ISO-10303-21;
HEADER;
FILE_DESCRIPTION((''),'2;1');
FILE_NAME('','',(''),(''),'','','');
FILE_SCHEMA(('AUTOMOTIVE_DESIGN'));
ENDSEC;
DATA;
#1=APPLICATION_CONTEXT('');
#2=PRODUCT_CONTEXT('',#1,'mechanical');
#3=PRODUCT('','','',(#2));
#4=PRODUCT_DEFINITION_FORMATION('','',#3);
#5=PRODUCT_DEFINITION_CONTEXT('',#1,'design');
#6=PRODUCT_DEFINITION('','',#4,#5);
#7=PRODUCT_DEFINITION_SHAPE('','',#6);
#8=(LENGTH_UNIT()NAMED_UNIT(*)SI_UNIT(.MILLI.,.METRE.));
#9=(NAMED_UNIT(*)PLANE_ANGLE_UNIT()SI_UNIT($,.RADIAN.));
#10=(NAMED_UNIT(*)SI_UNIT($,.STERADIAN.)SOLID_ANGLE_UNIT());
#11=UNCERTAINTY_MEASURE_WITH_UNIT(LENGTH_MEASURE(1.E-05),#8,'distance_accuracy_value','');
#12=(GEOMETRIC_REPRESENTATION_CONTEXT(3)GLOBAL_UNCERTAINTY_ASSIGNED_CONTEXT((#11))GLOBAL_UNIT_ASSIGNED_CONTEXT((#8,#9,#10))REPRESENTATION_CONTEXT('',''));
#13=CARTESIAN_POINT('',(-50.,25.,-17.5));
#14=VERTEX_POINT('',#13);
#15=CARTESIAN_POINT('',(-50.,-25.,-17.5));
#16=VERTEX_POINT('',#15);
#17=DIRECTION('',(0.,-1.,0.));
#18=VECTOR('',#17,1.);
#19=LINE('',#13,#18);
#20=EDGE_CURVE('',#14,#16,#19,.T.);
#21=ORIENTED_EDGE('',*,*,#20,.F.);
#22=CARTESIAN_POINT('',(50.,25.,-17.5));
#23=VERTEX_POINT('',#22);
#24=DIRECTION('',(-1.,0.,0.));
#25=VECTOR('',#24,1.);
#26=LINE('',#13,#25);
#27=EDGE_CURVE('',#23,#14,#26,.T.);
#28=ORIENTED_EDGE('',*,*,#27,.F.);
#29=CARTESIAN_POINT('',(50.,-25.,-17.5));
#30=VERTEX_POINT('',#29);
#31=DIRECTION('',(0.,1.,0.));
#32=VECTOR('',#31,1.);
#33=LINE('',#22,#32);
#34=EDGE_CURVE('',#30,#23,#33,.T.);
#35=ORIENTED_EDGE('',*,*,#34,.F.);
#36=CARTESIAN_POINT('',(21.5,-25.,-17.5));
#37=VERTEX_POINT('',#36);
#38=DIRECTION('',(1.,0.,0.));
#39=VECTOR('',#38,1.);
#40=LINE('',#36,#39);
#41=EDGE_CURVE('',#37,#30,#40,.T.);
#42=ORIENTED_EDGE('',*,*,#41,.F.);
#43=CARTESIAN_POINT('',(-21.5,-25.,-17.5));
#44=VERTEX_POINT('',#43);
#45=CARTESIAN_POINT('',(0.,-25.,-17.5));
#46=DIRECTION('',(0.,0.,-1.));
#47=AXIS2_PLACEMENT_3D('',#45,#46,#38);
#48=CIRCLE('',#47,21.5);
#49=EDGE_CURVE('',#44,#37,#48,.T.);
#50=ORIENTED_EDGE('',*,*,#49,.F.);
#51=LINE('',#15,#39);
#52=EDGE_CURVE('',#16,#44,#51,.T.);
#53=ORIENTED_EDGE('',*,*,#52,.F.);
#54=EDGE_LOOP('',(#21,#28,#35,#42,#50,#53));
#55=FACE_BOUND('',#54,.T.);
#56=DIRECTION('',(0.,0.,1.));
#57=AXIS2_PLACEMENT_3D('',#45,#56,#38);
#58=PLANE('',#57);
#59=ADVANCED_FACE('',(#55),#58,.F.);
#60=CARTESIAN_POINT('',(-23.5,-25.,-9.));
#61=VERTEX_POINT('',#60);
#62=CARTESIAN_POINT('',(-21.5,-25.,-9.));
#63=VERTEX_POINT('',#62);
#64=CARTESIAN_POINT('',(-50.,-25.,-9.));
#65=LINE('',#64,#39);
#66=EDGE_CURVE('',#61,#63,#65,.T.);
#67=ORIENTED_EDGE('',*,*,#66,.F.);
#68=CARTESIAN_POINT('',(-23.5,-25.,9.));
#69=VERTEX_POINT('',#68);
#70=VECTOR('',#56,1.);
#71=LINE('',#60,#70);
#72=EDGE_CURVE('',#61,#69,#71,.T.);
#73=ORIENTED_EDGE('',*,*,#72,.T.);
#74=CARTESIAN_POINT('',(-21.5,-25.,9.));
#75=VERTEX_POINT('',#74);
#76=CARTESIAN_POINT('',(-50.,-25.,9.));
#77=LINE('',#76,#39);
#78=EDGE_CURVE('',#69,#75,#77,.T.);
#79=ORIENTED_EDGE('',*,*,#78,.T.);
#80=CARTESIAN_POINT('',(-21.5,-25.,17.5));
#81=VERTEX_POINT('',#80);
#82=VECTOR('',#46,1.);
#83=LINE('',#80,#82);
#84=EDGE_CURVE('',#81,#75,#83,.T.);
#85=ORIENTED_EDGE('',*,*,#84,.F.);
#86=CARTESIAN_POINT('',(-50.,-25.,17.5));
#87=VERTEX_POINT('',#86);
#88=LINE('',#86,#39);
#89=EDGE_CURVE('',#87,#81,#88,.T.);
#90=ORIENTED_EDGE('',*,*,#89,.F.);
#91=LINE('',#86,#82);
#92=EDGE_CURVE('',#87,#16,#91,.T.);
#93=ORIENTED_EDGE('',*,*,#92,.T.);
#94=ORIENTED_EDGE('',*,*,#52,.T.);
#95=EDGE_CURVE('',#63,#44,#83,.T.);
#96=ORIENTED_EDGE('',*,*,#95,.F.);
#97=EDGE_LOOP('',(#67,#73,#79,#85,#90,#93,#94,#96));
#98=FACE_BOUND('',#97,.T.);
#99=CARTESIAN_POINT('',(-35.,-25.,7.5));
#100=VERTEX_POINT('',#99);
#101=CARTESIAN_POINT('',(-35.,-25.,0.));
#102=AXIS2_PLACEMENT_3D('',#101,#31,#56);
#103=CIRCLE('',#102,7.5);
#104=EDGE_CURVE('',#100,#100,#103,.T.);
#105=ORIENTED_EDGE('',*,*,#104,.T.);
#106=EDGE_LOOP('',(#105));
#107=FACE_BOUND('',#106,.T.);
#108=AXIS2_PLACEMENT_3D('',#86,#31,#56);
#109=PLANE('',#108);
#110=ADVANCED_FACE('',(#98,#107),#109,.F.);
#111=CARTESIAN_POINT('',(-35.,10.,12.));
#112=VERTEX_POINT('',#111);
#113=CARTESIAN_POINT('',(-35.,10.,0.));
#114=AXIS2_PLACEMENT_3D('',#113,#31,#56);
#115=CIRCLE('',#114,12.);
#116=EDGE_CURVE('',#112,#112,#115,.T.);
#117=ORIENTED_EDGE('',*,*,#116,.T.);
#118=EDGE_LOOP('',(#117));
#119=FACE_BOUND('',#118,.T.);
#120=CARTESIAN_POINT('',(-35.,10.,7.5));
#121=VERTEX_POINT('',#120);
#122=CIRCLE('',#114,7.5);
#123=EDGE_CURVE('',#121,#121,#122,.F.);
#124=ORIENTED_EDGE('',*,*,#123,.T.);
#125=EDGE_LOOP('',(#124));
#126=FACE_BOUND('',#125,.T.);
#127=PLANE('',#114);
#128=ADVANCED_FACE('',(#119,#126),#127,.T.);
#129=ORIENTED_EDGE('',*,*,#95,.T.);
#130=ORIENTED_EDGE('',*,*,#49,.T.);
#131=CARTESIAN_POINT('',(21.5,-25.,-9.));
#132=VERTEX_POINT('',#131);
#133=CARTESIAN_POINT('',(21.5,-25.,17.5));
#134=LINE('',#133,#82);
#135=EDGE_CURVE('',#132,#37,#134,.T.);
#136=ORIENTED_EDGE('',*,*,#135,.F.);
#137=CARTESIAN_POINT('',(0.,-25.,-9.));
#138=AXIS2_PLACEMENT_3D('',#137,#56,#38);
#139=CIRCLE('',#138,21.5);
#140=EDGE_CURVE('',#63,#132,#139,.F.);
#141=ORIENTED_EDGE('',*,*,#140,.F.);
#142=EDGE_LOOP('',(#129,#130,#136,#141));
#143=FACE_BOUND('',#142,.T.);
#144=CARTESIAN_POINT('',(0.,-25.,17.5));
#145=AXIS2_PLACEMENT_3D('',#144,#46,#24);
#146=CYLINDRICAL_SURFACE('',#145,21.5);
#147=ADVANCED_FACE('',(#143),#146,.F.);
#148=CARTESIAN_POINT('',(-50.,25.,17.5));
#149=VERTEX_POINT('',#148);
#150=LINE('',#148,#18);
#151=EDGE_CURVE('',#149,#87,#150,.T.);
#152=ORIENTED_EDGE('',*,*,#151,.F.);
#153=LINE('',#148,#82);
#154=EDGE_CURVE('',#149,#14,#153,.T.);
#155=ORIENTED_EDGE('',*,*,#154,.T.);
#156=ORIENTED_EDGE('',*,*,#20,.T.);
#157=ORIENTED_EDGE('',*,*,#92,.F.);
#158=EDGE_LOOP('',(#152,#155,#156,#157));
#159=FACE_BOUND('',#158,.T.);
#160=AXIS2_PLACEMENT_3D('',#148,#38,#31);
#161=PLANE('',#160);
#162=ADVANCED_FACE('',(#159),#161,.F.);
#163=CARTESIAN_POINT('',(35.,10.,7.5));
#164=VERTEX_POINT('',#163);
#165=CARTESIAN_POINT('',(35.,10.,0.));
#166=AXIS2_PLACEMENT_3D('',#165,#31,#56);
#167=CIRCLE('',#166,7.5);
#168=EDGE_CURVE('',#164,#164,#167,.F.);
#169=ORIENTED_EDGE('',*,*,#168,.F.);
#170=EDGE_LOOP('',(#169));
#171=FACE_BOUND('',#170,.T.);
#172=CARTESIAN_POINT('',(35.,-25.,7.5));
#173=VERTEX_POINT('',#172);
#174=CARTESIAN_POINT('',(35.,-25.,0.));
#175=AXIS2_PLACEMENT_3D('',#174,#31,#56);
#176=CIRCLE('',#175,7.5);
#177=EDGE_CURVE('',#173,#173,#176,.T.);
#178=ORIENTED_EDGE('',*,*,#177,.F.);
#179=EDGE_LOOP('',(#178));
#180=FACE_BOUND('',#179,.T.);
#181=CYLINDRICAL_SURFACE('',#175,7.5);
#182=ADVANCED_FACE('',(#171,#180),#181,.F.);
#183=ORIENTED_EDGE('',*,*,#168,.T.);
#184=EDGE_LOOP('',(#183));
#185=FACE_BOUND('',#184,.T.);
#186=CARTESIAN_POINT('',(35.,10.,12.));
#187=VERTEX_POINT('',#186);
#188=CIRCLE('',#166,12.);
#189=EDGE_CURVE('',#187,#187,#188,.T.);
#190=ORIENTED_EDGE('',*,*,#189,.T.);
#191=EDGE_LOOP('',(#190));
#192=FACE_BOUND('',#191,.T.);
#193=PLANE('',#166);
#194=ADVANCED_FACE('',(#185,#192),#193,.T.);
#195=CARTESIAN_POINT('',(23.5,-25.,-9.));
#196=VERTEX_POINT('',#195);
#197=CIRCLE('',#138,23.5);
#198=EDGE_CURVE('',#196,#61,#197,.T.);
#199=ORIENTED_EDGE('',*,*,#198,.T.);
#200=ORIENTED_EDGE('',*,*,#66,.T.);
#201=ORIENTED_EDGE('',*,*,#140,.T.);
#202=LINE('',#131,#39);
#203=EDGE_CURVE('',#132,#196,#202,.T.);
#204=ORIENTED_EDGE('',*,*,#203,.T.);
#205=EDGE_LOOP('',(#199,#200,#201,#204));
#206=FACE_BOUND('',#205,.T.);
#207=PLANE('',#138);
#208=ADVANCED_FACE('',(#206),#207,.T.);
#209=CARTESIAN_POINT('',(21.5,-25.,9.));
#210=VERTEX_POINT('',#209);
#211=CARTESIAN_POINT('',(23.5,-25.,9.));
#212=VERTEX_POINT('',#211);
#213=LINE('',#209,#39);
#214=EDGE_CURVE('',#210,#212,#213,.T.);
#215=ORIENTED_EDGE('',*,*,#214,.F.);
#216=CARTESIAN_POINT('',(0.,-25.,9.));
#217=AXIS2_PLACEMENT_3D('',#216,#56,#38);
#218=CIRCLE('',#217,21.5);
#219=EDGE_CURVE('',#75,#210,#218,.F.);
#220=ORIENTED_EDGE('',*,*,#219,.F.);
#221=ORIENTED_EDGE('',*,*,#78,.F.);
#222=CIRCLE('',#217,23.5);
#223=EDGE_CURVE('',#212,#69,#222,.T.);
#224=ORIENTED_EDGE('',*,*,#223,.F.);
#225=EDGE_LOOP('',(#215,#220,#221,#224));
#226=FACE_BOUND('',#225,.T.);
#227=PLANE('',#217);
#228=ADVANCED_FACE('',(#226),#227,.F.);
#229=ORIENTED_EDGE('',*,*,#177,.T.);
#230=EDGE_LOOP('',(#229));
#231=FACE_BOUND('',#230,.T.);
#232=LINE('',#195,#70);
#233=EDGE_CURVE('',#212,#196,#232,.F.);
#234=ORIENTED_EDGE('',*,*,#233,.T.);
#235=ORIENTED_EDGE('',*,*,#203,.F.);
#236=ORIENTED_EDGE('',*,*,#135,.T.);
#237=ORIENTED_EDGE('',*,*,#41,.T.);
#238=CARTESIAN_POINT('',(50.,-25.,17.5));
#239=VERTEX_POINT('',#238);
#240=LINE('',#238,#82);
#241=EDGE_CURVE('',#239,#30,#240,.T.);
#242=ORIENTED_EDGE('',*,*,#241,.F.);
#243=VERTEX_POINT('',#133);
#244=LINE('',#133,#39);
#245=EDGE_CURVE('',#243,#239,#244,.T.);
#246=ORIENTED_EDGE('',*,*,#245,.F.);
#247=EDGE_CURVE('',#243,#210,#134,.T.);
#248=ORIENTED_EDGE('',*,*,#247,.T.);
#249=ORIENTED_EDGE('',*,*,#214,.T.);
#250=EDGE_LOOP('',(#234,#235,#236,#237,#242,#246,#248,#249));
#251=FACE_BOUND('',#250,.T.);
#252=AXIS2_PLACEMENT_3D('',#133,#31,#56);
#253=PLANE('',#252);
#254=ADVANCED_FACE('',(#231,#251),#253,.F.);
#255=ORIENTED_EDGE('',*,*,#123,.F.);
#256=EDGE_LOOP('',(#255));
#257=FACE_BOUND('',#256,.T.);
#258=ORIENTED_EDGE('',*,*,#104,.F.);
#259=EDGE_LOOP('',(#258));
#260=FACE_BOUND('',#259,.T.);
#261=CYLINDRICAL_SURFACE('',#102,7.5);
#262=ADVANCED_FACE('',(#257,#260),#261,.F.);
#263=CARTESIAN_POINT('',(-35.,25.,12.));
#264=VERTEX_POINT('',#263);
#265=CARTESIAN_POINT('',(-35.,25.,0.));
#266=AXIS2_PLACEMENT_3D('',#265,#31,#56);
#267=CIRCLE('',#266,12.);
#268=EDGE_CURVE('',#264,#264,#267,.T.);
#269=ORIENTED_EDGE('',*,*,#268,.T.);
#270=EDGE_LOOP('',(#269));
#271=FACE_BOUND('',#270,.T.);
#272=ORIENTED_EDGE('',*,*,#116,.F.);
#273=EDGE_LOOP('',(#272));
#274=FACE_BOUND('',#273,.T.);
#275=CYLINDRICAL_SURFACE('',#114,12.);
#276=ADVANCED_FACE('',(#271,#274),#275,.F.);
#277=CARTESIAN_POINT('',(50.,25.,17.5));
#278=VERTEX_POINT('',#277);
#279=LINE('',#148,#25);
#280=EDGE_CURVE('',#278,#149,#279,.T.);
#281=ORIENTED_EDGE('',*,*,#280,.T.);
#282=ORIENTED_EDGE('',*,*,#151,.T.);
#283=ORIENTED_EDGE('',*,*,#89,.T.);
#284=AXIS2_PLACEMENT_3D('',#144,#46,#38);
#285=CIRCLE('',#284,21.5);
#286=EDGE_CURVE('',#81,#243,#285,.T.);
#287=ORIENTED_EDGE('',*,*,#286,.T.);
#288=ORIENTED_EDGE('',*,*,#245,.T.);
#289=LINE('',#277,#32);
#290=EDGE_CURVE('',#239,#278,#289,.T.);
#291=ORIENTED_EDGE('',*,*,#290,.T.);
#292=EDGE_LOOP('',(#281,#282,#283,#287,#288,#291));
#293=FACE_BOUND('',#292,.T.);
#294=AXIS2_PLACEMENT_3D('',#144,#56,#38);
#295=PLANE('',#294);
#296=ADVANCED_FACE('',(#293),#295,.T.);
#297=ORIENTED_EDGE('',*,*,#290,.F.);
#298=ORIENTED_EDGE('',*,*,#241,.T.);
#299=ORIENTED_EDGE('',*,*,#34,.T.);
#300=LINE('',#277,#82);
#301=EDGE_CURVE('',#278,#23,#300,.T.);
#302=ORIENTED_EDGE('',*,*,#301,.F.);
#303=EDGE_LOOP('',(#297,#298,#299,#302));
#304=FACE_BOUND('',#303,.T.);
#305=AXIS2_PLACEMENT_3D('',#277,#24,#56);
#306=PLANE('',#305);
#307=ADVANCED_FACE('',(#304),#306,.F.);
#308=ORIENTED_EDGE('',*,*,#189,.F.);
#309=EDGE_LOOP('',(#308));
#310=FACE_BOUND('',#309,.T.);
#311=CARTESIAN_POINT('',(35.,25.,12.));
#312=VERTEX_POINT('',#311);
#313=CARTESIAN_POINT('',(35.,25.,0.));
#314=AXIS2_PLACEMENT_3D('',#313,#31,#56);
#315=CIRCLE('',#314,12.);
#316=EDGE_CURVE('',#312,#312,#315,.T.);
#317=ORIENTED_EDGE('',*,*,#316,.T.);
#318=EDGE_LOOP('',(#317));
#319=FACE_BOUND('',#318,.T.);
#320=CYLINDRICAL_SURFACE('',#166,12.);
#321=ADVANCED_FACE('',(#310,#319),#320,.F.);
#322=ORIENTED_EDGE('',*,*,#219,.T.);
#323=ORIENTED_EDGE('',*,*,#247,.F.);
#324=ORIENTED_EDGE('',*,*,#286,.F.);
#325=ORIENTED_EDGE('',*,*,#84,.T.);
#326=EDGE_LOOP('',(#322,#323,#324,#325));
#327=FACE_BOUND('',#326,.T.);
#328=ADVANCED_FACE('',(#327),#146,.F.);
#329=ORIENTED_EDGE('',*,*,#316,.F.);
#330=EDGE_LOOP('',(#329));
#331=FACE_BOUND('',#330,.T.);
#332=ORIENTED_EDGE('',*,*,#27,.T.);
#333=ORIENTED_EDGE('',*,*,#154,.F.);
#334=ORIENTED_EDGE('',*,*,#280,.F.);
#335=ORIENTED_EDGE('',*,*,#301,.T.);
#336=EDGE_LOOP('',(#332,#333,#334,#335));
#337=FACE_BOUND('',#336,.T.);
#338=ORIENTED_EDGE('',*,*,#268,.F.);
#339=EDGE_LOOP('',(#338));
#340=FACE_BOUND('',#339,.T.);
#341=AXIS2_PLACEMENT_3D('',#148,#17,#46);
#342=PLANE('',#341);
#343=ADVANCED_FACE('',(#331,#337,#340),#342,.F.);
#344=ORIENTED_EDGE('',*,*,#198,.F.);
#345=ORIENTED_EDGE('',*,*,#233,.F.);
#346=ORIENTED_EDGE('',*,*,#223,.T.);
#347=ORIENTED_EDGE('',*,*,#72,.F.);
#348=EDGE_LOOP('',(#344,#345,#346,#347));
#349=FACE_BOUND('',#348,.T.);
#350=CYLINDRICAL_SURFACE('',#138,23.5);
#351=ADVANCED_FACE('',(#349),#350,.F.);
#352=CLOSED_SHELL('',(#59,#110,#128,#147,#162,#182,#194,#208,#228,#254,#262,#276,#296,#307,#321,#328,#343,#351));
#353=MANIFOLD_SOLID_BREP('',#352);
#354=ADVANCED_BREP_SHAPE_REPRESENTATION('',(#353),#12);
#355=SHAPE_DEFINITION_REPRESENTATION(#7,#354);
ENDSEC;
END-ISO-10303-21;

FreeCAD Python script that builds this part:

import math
import FreeCAD as App
import Part
import Sketcher

doc = App.newDocument("Part")
body = doc.addObject("PartDesign::Body", "Body")

sketch1 = body.newObject("Sketcher::SketchObject", "Sketch")
sketch1.AttachmentSupport = (doc.getObject("XY_Plane"), [""])
sketch1.MapMode = "FlatFace"
sketch1.addGeometry(Part.LineSegment(App.Vector(21.5, -25, 0), App.Vector(50, -25, 0)), False)
sketch1.addGeometry(Part.LineSegment(App.Vector(50, -25, 0), App.Vector(50, 25, 0)), False)
sketch1.addGeometry(Part.LineSegment(App.Vector(50, 25, 0), App.Vector(-50, 25, 0)), False)
sketch1.addGeometry(Part.LineSegment(App.Vector(-50, 25, 0), App.Vector(-50, -25, 0)), False)
sketch1.addGeometry(Part.LineSegment(App.Vector(-50, -25, 0), App.Vector(-21.5, -25, 0)), False)
sketch1.addGeometry(Part.ArcOfCircle(Part.Circle(App.Vector(0, -25, 0), App.Vector(0, 0, 1), 21.5), math.radians(0), math.radians(180)), False)
sketch1.addConstraint(Sketcher.Constraint("Coincident", 0, 2, 1, 1))
sketch1.addConstraint(Sketcher.Constraint("Coincident", 1, 2, 2, 1))
sketch1.addConstraint(Sketcher.Constraint("Coincident", 2, 2, 3, 1))
sketch1.addConstraint(Sketcher.Constraint("Coincident", 3, 2, 4, 1))
sketch1.addConstraint(Sketcher.Constraint("Coincident", 4, 2, 5, 2))
sketch1.addConstraint(Sketcher.Constraint("Coincident", 5, 1, 0, 1))
sketch1.addConstraint(Sketcher.Constraint("Horizontal", 0))
sketch1.addConstraint(Sketcher.Constraint("Vertical", 1))
sketch1.addConstraint(Sketcher.Constraint("Horizontal", 2))
sketch1.addConstraint(Sketcher.Constraint("Vertical", 3))
sketch1.addConstraint(Sketcher.Constraint("Horizontal", 4))
sketch1.addConstraint(Sketcher.Constraint("Symmetric", 0, 2, 2, 2, -1, 1))
sketch1.addConstraint(Sketcher.Constraint("Symmetric", 4, 2, 5, 1, -2))
sketch1.addConstraint(Sketcher.Constraint("Horizontal", 5, 3, 0, 2))
sketch1.addConstraint(Sketcher.Constraint("Radius", 5, 21.5))
sketch1.addConstraint(Sketcher.Constraint("DistanceX", 2, 2, 2, 1, 100.0))
sketch1.addConstraint(Sketcher.Constraint("DistanceY", 1, 1, 1, 2, 50.0))
pad1 = body.newObject("PartDesign::Pad", "Pad")
pad1.Profile = sketch1
pad1.Length = 35
pad1.Midplane = True

sketch2 = body.newObject("Sketcher::SketchObject", "Sketch001")
sketch2.AttachmentSupport = (doc.getObject("XZ_Plane"), [""])
sketch2.MapMode = "FlatFace"
sketch2.AttachmentOffset = App.Placement(App.Vector(0, 0, -25), App.Rotation())
sketch2.addGeometry(Part.Circle(App.Vector(-35, 0, 0), App.Vector(0, 0, 1), 7.5), False)
sketch2.addGeometry(Part.Circle(App.Vector(35, 0, 0), App.Vector(0, 0, 1), 7.5), False)
sketch2.addConstraint(Sketcher.Constraint("Equal", 0, 1))
sketch2.addConstraint(Sketcher.Constraint("Symmetric", 0, 3, 1, 3, -1, 1))
sketch2.addConstraint(Sketcher.Constraint("PointOnObject", 0, 3, -1))
sketch2.addConstraint(Sketcher.Constraint("Diameter", 0, 15.0))
sketch2.addConstraint(Sketcher.Constraint("DistanceX", 0, 3, -1, 1, 35.0))
pocket1 = body.newObject("PartDesign::Pocket", "Pocket")
pocket1.Profile = sketch2
pocket1.Type = "ThroughAll"
pocket1.Reversed = True

sketch3 = body.newObject("Sketcher::SketchObject", "Sketch002")
sketch3.AttachmentSupport = (doc.getObject("XZ_Plane"), [""])
sketch3.MapMode = "FlatFace"
sketch3.AttachmentOffset = App.Placement(App.Vector(0, 0, -25), App.Rotation())
sketch3.addGeometry(Part.Circle(App.Vector(-35, 0, 0), App.Vector(0, 0, 1), 12), False)
sketch3.addGeometry(Part.Circle(App.Vector(35, 0, 0), App.Vector(0, 0, 1), 12), False)
sketch3.addConstraint(Sketcher.Constraint("Equal", 0, 1))
sketch3.addConstraint(Sketcher.Constraint("Symmetric", 0, 3, 1, 3, -1, 1))
sketch3.addConstraint(Sketcher.Constraint("PointOnObject", 0, 3, -1))
sketch3.addConstraint(Sketcher.Constraint("Diameter", 0, 24.0))
sketch3.addConstraint(Sketcher.Constraint("DistanceX", 0, 3, -1, 1, 35.0))
pocket2 = body.newObject("PartDesign::Pocket", "Pocket001")
pocket2.Profile = sketch3
pocket2.Length = 15
pocket2.Reversed = True

sketch4 = body.newObject("Sketcher::SketchObject", "Sketch003")
sketch4.AttachmentSupport = (doc.getObject("XY_Plane"), [""])
sketch4.MapMode = "FlatFace"
sketch4.addGeometry(Part.Circle(App.Vector(0, -25, 0), App.Vector(0, 0, 1), 23.5), False)
sketch4.addConstraint(Sketcher.Constraint("PointOnObject", 0, 3, -2))
sketch4.addConstraint(Sketcher.Constraint("Diameter", 0, 47.0))
sketch4.addConstraint(Sketcher.Constraint("DistanceY", 0, 3, -1, 1, 25.0))
pocket3 = body.newObject("PartDesign::Pocket", "Pocket002")
pocket3.Profile = sketch4
pocket3.Length = 18
pocket3.Midplane = True

doc.recompute()
